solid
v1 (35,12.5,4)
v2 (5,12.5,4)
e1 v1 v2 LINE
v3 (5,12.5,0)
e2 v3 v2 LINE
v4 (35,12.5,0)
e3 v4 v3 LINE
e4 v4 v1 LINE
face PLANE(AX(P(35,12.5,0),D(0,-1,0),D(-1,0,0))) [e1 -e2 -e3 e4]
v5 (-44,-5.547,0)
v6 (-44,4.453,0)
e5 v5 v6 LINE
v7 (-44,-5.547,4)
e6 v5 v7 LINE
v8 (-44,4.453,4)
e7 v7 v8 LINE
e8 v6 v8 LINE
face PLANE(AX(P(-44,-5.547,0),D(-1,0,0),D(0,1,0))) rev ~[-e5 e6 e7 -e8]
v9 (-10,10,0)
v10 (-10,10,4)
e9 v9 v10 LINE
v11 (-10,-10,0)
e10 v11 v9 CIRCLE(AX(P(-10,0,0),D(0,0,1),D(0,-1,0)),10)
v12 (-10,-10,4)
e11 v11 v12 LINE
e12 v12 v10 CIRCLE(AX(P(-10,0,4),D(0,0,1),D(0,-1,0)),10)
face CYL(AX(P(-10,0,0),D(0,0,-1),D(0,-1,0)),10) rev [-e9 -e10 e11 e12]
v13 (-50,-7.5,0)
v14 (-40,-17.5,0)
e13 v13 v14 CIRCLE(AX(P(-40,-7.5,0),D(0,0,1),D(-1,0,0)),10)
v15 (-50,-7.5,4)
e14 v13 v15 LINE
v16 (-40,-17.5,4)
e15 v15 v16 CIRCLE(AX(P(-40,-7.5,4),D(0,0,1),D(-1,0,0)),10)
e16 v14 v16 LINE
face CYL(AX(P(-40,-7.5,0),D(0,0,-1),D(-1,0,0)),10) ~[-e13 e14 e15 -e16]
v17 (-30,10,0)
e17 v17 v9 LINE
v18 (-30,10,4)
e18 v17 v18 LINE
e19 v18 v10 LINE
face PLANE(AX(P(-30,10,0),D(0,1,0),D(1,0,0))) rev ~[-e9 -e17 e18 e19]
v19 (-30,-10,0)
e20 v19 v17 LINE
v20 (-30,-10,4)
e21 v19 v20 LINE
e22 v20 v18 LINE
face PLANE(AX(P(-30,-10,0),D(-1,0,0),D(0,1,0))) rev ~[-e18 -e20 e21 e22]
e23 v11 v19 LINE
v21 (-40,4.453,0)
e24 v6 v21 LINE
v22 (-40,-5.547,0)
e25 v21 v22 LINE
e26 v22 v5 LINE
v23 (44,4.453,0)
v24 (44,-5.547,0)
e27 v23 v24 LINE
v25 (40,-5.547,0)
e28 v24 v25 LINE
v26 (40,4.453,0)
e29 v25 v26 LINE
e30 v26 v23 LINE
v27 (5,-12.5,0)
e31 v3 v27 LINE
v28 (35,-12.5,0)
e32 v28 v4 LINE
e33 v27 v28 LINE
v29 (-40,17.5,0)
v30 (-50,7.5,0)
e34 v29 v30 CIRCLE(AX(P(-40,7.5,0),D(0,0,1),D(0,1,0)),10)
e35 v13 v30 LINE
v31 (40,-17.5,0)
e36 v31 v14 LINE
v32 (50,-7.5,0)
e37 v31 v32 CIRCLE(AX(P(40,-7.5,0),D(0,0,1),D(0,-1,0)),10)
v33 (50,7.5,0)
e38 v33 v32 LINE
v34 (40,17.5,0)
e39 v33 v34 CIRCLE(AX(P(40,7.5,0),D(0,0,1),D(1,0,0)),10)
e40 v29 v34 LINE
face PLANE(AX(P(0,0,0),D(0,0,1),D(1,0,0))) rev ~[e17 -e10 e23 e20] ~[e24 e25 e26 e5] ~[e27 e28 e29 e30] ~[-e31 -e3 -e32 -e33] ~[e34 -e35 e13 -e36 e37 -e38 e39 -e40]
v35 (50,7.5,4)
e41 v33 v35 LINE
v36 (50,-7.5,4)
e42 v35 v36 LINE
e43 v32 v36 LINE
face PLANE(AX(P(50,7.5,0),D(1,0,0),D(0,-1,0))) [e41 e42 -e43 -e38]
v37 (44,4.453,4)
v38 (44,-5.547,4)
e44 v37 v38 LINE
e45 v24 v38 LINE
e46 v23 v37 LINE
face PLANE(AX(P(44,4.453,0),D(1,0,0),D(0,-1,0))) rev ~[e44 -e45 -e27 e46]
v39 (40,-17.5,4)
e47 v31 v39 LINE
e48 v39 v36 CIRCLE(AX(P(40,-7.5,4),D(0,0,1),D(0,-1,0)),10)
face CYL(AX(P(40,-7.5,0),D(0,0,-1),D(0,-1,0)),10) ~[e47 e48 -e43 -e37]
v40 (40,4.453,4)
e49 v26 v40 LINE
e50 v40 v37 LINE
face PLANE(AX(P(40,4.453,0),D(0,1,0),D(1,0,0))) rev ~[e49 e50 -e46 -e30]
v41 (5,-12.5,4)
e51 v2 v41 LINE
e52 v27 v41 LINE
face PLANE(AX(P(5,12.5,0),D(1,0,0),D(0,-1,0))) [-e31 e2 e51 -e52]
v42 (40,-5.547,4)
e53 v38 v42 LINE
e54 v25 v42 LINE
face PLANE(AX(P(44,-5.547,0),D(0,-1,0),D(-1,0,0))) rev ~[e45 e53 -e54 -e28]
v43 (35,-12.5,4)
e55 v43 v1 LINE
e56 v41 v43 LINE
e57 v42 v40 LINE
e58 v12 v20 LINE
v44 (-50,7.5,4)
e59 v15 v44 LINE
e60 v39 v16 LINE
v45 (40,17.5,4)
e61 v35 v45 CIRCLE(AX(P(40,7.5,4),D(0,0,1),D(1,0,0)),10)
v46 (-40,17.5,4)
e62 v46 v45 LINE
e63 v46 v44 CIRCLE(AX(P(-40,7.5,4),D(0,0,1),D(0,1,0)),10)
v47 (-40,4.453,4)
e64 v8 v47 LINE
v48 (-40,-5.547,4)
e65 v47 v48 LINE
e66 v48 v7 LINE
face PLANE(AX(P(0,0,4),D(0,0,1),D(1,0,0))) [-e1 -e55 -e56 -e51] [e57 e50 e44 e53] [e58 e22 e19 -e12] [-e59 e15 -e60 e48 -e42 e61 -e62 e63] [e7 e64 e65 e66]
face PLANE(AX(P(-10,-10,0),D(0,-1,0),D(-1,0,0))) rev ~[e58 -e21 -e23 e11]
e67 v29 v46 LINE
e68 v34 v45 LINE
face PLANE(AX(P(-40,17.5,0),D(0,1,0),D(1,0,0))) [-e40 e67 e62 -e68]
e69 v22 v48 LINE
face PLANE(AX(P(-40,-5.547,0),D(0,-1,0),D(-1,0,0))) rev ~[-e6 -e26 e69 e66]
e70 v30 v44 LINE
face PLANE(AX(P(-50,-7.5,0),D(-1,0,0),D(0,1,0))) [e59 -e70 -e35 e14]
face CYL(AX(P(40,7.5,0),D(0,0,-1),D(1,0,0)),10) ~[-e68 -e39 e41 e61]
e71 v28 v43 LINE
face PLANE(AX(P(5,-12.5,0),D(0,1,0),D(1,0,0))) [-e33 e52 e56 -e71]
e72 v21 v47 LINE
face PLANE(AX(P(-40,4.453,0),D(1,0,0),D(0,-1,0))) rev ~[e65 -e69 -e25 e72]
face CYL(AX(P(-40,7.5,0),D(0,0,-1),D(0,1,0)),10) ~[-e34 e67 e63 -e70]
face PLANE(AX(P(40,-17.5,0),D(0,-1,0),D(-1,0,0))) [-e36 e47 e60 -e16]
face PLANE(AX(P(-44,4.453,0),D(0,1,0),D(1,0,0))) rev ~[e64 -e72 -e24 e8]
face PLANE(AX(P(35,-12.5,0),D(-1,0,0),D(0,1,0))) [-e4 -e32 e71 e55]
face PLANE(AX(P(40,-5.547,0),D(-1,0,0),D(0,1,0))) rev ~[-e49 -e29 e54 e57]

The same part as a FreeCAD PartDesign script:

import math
import FreeCAD as App
import Part
import Sketcher
from FreeCAD import Vector
Q = App.Units.Quantity


def add_polygon(sketch, points):
    """Adds a closed chain of lines whose ends are joined by coincident constraints."""
    first, n = sketch.GeometryCount, len(points)
    for a, b in zip(points, points[1:] + points[:1]):
        sketch.addGeometry(Part.LineSegment(App.Vector(*a, 0), App.Vector(*b, 0)), False)
    for i in range(n):
        sketch.addConstraint(Sketcher.Constraint("Coincident", first + i, 2, first + (i + 1) % n, 1))

doc = App.newDocument("Part")
body = doc.addObject("PartDesign::Body", "Body")

# Sketch on XY plane
sketch1 = body.newObject("Sketcher::SketchObject", "Sketch")
sketch1.AttachmentSupport = (doc.getObject("XY_Plane"), [""])
sketch1.MapMode = "FlatFace"
sketch1.addGeometry(Part.LineSegment(Vector(-50, 7.5, 0), Vector(-50, -7.5, 0)), False)  # 0
sketch1.addGeometry(Part.ArcOfCircle(Part.Circle(Vector(-40, -7.5, 0), Vector(0, 0, 1), 10), math.radians(180), math.radians(270)), False)  # 1
sketch1.addGeometry(Part.LineSegment(Vector(-40, -17.5, 0), Vector(40, -17.5, 0)), False)  # 2
sketch1.addGeometry(Part.ArcOfCircle(Part.Circle(Vector(40, -7.5, 0), Vector(0, 0, 1), 10), math.radians(-90), math.radians(0)), False)  # 3
sketch1.addGeometry(Part.LineSegment(Vector(50, -7.5, 0), Vector(50, 7.5, 0)), False)  # 4
sketch1.addGeometry(Part.ArcOfCircle(Part.Circle(Vector(40, 7.5, 0), Vector(0, 0, 1), 10), math.radians(0), math.radians(90)), False)  # 5
sketch1.addGeometry(Part.LineSegment(Vector(40, 17.5, 0), Vector(-40, 17.5, 0)), False)  # 6
sketch1.addGeometry(Part.ArcOfCircle(Part.Circle(Vector(-40, 7.5, 0), Vector(0, 0, 1), 10), math.radians(90), math.radians(180)), False)  # 7
add_polygon(sketch1, [(-44, -5.547), (-44, 4.453), (-40, 4.453), (-40, -5.547)])  # lines 8-11
add_polygon(sketch1, [(44, 4.453), (44, -5.547), (40, -5.547), (40, 4.453)])  # lines 12-15
sketch1.addGeometry(Part.ArcOfCircle(Part.Circle(Vector(-10, 0, 0), Vector(0, 0, 1), 10), math.radians(-90), math.radians(90)), False)  # 16
sketch1.addGeometry(Part.LineSegment(Vector(-10, -10, 0), Vector(-30, -10, 0)), False)  # 17
sketch1.addGeometry(Part.LineSegment(Vector(-30, -10, 0), Vector(-30, 10, 0)), False)  # 18
sketch1.addGeometry(Part.LineSegment(Vector(-30, 10, 0), Vector(-10, 10, 0)), False)  # 19
add_polygon(sketch1, [(5, 12.5), (35, 12.5), (35, -12.5), (5, -12.5)])  # lines 20-23
sketch1.addConstraint(Sketcher.Constraint("Tangent", 0, 2, 1, 1))
sketch1.addConstraint(Sketcher.Constraint("Tangent", 1, 2, 2, 1))
sketch1.addConstraint(Sketcher.Constraint("Tangent", 2, 2, 3, 1))
sketch1.addConstraint(Sketcher.Constraint("Tangent", 3, 2, 4, 1))
sketch1.addConstraint(Sketcher.Constraint("Tangent", 4, 2, 5, 1))
sketch1.addConstraint(Sketcher.Constraint("Tangent", 5, 2, 6, 1))
sketch1.addConstraint(Sketcher.Constraint("Tangent", 6, 2, 7, 1))
sketch1.addConstraint(Sketcher.Constraint("Tangent", 7, 2, 0, 1))
sketch1.addConstraint(Sketcher.Constraint("Tangent", 16, 1, 17, 1))
sketch1.addConstraint(Sketcher.Constraint("Coincident", 17, 2, 18, 1))
sketch1.addConstraint(Sketcher.Constraint("Coincident", 18, 2, 19, 1))
sketch1.addConstraint(Sketcher.Constraint("Tangent", 19, 2, 16, 2))
sketch1.addConstraint(Sketcher.Constraint("Vertical", 0))
sketch1.addConstraint(Sketcher.Constraint("Horizontal", 2))
sketch1.addConstraint(Sketcher.Constraint("Vertical", 4))
sketch1.addConstraint(Sketcher.Constraint("Horizontal", 6))
sketch1.addConstraint(Sketcher.Constraint("Vertical", 8))
sketch1.addConstraint(Sketcher.Constraint("Horizontal", 9))
sketch1.addConstraint(Sketcher.Constraint("Vertical", 10))
sketch1.addConstraint(Sketcher.Constraint("Horizontal", 11))
sketch1.addConstraint(Sketcher.Constraint("Vertical", 12))
sketch1.addConstraint(Sketcher.Constraint("Horizontal", 13))
sketch1.addConstraint(Sketcher.Constraint("Vertical", 14))
sketch1.addConstraint(Sketcher.Constraint("Horizontal", 15))
sketch1.addConstraint(Sketcher.Constraint("Horizontal", 17))
sketch1.addConstraint(Sketcher.Constraint("Vertical", 18))
sketch1.addConstraint(Sketcher.Constraint("Horizontal", 19))
sketch1.addConstraint(Sketcher.Constraint("Horizontal", 20))
sketch1.addConstraint(Sketcher.Constraint("Vertical", 21))
sketch1.addConstraint(Sketcher.Constraint("Horizontal", 22))
sketch1.addConstraint(Sketcher.Constraint("Vertical", 23))
sketch1.addConstraint(Sketcher.Constraint("Equal", 1, 3))
sketch1.addConstraint(Sketcher.Constraint("Equal", 3, 5))
sketch1.addConstraint(Sketcher.Constraint("Equal", 5, 7))
sketch1.addConstraint(Sketcher.Constraint("Equal", 7, 16))
sketch1.addConstraint(Sketcher.Constraint("Symmetric", 1, 3, 5, 3, -1, 1))
sketch1.addConstraint(Sketcher.Constraint("Symmetric", 11, 2, 12, 2, -2))
sketch1.addConstraint(Sketcher.Constraint("Symmetric", 9, 2, 14, 2, -2))
sketch1.addConstraint(Sketcher.Constraint("PointOnObject", 16, 3, -1))
sketch1.addConstraint(Sketcher.Constraint("Vertical", 6, 2, 9, 2))
sketch1.addConstraint(Sketcher.Constraint("Equal", 19, 18))
sketch1.addConstraint(Sketcher.Constraint("DistanceX", 20, 1, 20, 2, Q("30 mm")))
sketch1.addConstraint(Sketcher.Constraint("DistanceY", 21, 2, 21, 1, Q("25 mm")))
sketch1.addConstraint(Sketcher.Constraint("DistanceX", 17, 2, -1, 1, Q("30 mm")))
sketch1.addConstraint(Sketcher.Constraint("DistanceX", -1, 1, 22, 2, Q("5 mm")))
sketch1.addConstraint(Sketcher.Constraint("Radius", 1, Q("10 mm")))
sketch1.addConstraint(Sketcher.Constraint("DistanceX", 1, 3, 16, 3, Q("30 mm")))
sketch1.addConstraint(Sketcher.Constraint("DistanceY", 1, 2, 7, 3, Q("25 mm")))
sketch1.addConstraint(Sketcher.Constraint("DistanceY", 5, 3, 20, 2, Q("5 mm")))
sketch1.addConstraint(Sketcher.Constraint("DistanceX", 9, 1, 9, 2, Q("4 mm")))
sketch1.addConstraint(Sketcher.Constraint("DistanceY", 8, 1, 8, 2, Q("10 mm")))
sketch1.addConstraint(Sketcher.Constraint("DistanceY", -1, 1, 8, 2, Q("4.453 mm")))
pad1 = body.newObject("PartDesign::Pad", "Pad")
pad1.Profile = sketch1
pad1.Length = 4

doc.recompute()
